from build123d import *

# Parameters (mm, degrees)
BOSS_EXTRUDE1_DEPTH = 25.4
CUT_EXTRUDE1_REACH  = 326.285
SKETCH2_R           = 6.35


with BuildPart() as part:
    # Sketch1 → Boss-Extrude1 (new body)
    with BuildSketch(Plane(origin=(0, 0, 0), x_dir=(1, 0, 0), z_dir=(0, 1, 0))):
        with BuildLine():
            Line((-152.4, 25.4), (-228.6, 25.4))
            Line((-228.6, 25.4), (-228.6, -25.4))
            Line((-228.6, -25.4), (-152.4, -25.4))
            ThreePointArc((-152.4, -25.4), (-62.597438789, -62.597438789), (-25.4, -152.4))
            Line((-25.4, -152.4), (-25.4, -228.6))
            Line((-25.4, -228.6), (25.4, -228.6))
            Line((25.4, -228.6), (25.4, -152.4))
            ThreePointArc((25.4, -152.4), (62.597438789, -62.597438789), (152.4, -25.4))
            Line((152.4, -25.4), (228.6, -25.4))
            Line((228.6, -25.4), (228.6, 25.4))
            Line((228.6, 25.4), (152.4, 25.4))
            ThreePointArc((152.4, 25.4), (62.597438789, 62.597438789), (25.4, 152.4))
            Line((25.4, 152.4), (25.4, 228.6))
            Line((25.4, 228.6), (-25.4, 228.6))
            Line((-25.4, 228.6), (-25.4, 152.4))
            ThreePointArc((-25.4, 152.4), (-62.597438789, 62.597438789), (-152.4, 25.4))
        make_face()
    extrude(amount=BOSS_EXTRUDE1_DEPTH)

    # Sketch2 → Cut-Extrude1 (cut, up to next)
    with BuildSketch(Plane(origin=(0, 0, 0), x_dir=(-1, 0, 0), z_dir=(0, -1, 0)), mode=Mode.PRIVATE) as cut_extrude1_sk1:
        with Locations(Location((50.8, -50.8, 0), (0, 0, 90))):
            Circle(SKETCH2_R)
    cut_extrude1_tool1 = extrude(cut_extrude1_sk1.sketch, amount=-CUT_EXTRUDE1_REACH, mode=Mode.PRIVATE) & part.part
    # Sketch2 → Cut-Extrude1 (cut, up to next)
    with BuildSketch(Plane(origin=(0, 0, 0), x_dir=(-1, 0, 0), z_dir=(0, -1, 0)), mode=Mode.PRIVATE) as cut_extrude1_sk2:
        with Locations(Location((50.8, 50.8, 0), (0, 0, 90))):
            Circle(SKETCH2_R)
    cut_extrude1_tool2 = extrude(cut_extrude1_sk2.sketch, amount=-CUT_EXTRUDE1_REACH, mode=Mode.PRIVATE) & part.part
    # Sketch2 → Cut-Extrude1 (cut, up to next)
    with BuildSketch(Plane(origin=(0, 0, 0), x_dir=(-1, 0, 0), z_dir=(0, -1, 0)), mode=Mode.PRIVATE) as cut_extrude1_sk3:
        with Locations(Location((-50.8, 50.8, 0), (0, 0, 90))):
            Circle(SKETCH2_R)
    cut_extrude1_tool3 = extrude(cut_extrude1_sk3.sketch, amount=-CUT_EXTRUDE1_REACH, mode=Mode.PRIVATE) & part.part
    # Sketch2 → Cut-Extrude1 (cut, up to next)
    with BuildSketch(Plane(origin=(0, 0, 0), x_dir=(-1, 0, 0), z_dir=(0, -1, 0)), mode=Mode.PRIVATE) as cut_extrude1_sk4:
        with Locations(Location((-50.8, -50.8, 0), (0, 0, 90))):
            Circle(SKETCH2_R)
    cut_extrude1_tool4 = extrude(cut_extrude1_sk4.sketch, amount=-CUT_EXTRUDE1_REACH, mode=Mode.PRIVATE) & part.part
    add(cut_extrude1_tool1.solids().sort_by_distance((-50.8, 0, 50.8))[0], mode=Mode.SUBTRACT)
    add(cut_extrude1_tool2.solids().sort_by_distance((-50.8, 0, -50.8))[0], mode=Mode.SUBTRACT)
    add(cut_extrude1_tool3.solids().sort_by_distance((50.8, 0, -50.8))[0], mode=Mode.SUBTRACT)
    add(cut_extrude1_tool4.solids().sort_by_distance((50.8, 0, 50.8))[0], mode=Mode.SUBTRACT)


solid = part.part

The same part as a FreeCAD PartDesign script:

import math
import FreeCAD as App
import Part
import Sketcher
from FreeCAD import Vector
Q = App.Units.Quantity

doc = App.newDocument("Part")
params = doc.addObject("Spreadsheet::Sheet", "Params")
for row, (alias, value) in enumerate([
    ("sketch1_radius", "5 in"),
    ("sketch1_width", "3 in"),
    ("sketch1_width2", "2 in"),
    ("pad1_length", "1 in"),
    ("sketch2_diameter", "0.5 in"),
    ("sketch3_diameter", "0.5 in"),
    ("sketch4_diameter", "0.5 in"),
    ("sketch5_diameter", "0.5 in"),
], start=1):
    params.set(f"A{row}", alias)
    params.set(f"B{row}", "=" + value)
    params.setAlias(f"B{row}", alias)

body = doc.addObject("PartDesign::Body", "Body")

# Sketch on XZ plane
sketch1 = body.newObject("Sketcher::SketchObject", "Sketch")
sketch1.AttachmentSupport = (doc.getObject("XZ_Plane"), [""])
sketch1.MapMode = "FlatFace"
sketch1.addGeometry(Part.LineSegment(Vector(-152.4, -25.4, 0), Vector(-228.6, -25.4, 0)), False)
sketch1.addGeometry(Part.LineSegment(Vector(-228.6, -25.4, 0), Vector(-228.6, 25.4, 0)), False)
sketch1.addGeometry(Part.LineSegment(Vector(-228.6, 25.4, 0), Vector(-152.4, 25.4, 0)), False)
sketch1.addGeometry(Part.ArcOfCircle(Part.Circle(Vector(-152.4, 152.4, 0), Vector(0, 0, 1), 127), math.radians(-90), math.radians(0)), False)
sketch1.addGeometry(Part.LineSegment(Vector(-25.4, 152.4, 0), Vector(-25.4, 228.6, 0)), False)
sketch1.addGeometry(Part.LineSegment(Vector(-25.4, 228.6, 0), Vector(25.4, 228.6, 0)), False)
sketch1.addGeometry(Part.LineSegment(Vector(25.4, 228.6, 0), Vector(25.4, 152.4, 0)), False)
sketch1.addGeometry(Part.ArcOfCircle(Part.Circle(Vector(152.4, 152.4, 0), Vector(0, 0, 1), 127), math.radians(180), math.radians(270)), False)
sketch1.addGeometry(Part.LineSegment(Vector(152.4, 25.4, 0), Vector(228.6, 25.4, 0)), False)
sketch1.addGeometry(Part.LineSegment(Vector(228.6, 25.4, 0), Vector(228.6, -25.4, 0)), False)
sketch1.addGeometry(Part.LineSegment(Vector(228.6, -25.4, 0), Vector(152.4, -25.4, 0)), False)
sketch1.addGeometry(Part.ArcOfCircle(Part.Circle(Vector(152.4, -152.4, 0), Vector(0, 0, 1), 127), math.radians(90), math.radians(180)), False)
sketch1.addGeometry(Part.LineSegment(Vector(25.4, -152.4, 0), Vector(25.4, -228.6, 0)), False)
sketch1.addGeometry(Part.LineSegment(Vector(25.4, -228.6, 0), Vector(-25.4, -228.6, 0)), False)
sketch1.addGeometry(Part.LineSegment(Vector(-25.4, -228.6, 0), Vector(-25.4, -152.4, 0)), False)
sketch1.addGeometry(Part.ArcOfCircle(Part.Circle(Vector(-152.4, -152.4, 0), Vector(0, 0, 1), 127), math.radians(0), math.radians(90)), False)
sketch1.addConstraint(Sketcher.Constraint("Coincident", 0, 2, 1, 1))
sketch1.addConstraint(Sketcher.Constraint("Coincident", 1, 2, 2, 1))
sketch1.addConstraint(Sketcher.Constraint("Tangent", 2, 2, 3, 1))
sketch1.addConstraint(Sketcher.Constraint("Tangent", 3, 2, 4, 1))
sketch1.addConstraint(Sketcher.Constraint("Coincident", 4, 2, 5, 1))
sketch1.addConstraint(Sketcher.Constraint("Coincident", 5, 2, 6, 1))
sketch1.addConstraint(Sketcher.Constraint("Tangent", 6, 2, 7, 1))
sketch1.addConstraint(Sketcher.Constraint("Tangent", 7, 2, 8, 1))
sketch1.addConstraint(Sketcher.Constraint("Coincident", 8, 2, 9, 1))
sketch1.addConstraint(Sketcher.Constraint("Coincident", 9, 2, 10, 1))
sketch1.addConstraint(Sketcher.Constraint("Tangent", 10, 2, 11, 1))
sketch1.addConstraint(Sketcher.Constraint("Tangent", 11, 2, 12, 1))
sketch1.addConstraint(Sketcher.Constraint("Coincident", 12, 2, 13, 1))
sketch1.addConstraint(Sketcher.Constraint("Coincident", 13, 2, 14, 1))
sketch1.addConstraint(Sketcher.Constraint("Tangent", 14, 2, 15, 1))
sketch1.addConstraint(Sketcher.Constraint("Tangent", 15, 2, 0, 1))
sketch1.addConstraint(Sketcher.Constraint("Horizontal", 0))
sketch1.addConstraint(Sketcher.Constraint("Vertical", 1))
sketch1.addConstraint(Sketcher.Constraint("Horizontal", 2))
sketch1.addConstraint(Sketcher.Constraint("Vertical", 4))
sketch1.addConstraint(Sketcher.Constraint("Horizontal", 5))
sketch1.addConstraint(Sketcher.Constraint("Vertical", 6))
sketch1.addConstraint(Sketcher.Constraint("Horizontal", 8))
sketch1.addConstraint(Sketcher.Constraint("Vertical", 9))
sketch1.addConstraint(Sketcher.Constraint("Horizontal", 10))
sketch1.addConstraint(Sketcher.Constraint("Vertical", 12))
sketch1.addConstraint(Sketcher.Constraint("Horizontal", 13))
sketch1.addConstraint(Sketcher.Constraint("Vertical", 14))
sketch1.addConstraint(Sketcher.Constraint("Equal", 3, 7))
sketch1.addConstraint(Sketcher.Constraint("Equal", 7, 11))
sketch1.addConstraint(Sketcher.Constraint("Equal", 11, 15))
sketch1.addConstraint(Sketcher.Constraint("Symmetric", 3, 3, 11, 3, -1, 1))
sketch1.addConstraint(Sketcher.Constraint("Symmetric", 7, 3, 15, 3, -1, 1))
sketch1.addConstraint(Sketcher.Constraint("Symmetric", 3, 3, 7, 3, -2))
sketch1.addConstraint(Sketcher.Constraint("Equal", 2, 8))
sketch1.addConstraint(Sketcher.Constraint("Equal", 13, 1))
sketch1.addConstraint(Sketcher.Constraint("Equal", 10, 4))
sketch1.addConstraint(Sketcher.Constraint("Equal", 6, 12))
sketch1.addConstraint(Sketcher.Constraint("Radius", 3, Q("5 in")))
sketch1.addConstraint(Sketcher.Constraint("DistanceX", 0, 2, 0, 1, Q("3 in")))
sketch1.addConstraint(Sketcher.Constraint("DistanceX", 5, 1, 5, 2, Q("2 in")))
sketch1.setExpression("Constraints[38]", "Params.sketch1_radius")
sketch1.setExpression("Constraints[39]", "Params.sketch1_width")
sketch1.setExpression("Constraints[40]", "Params.sketch1_width2")
pad1 = body.newObject("PartDesign::Pad", "Pad")
pad1.Profile = sketch1
pad1.setExpression("Length", "Params.pad1_length")
pad1.Reversed = True

# Sketch on XZ plane
sketch2 = body.newObject("Sketcher::SketchObject", "Sketch001")
sketch2.AttachmentSupport = (doc.getObject("XZ_Plane"), [""])
sketch2.MapMode = "FlatFace"
sketch2.addGeometry(Part.Circle(Vector(-50.8, 50.8, 0), Vector(0, 0, 1), 6.35), False)
sketch2.addConstraint(Sketcher.Constraint("Diameter", 0, Q("0.5 in")))
sketch2.addConstraint(Sketcher.Constraint("DistanceX", 0, 3, -1, 1, Q("2 in")))
sketch2.addConstraint(Sketcher.Constraint("DistanceY", -1, 1, 0, 3, Q("2 in")))
sketch2.setExpression("Constraints[0]", "Params.sketch2_diameter")
pocket1 = body.newObject("PartDesign::Pocket", "Pocket")
pocket1.Profile = sketch2
pocket1.Type = "UpToFirst"

# Sketch on XZ plane
sketch3 = body.newObject("Sketcher::SketchObject", "Sketch002")
sketch3.AttachmentSupport = (doc.getObject("XZ_Plane"), [""])
sketch3.MapMode = "FlatFace"
sketch3.addGeometry(Part.Circle(Vector(-50.8, -50.8, 0), Vector(0, 0, 1), 6.35), False)
sketch3.addConstraint(Sketcher.Constraint("Diameter", 0, Q("0.5 in")))
sketch3.addConstraint(Sketcher.Constraint("DistanceX", 0, 3, -1, 1, Q("2 in")))
sketch3.addConstraint(Sketcher.Constraint("DistanceY", 0, 3, -1, 1, Q("2 in")))
sketch3.setExpression("Constraints[0]", "Params.sketch3_diameter")
pocket2 = body.newObject("PartDesign::Pocket", "Pocket001")
pocket2.Profile = sketch3
pocket2.Type = "UpToFirst"

# Sketch on XZ plane
sketch4 = body.newObject("Sketcher::SketchObject", "Sketch003")
sketch4.AttachmentSupport = (doc.getObject("XZ_Plane"), [""])
sketch4.MapMode = "FlatFace"
sketch4.addGeometry(Part.Circle(Vector(50.8, -50.8, 0), Vector(0, 0, 1), 6.35), False)
sketch4.addConstraint(Sketcher.Constraint("Diameter", 0, Q("0.5 in")))
sketch4.addConstraint(Sketcher.Constraint("DistanceX", -1, 1, 0, 3, Q("2 in")))
sketch4.addConstraint(Sketcher.Constraint("DistanceY", 0, 3, -1, 1, Q("2 in")))
sketch4.setExpression("Constraints[0]", "Params.sketch4_diameter")
pocket3 = body.newObject("PartDesign::Pocket", "Pocket002")
pocket3.Profile = sketch4
pocket3.Type = "UpToFirst"

# Sketch on XZ plane
sketch5 = body.newObject("Sketcher::SketchObject", "Sketch004")
sketch5.AttachmentSupport = (doc.getObject("XZ_Plane"), [""])
sketch5.MapMode = "FlatFace"
sketch5.addGeometry(Part.Circle(Vector(50.8, 50.8, 0), Vector(0, 0, 1), 6.35), False)
sketch5.addConstraint(Sketcher.Constraint("Diameter", 0, Q("0.5 in")))
sketch5.addConstraint(Sketcher.Constraint("DistanceX", -1, 1, 0, 3, Q("2 in")))
sketch5.addConstraint(Sketcher.Constraint("DistanceY", -1, 1, 0, 3, Q("2 in")))
sketch5.setExpression("Constraints[0]", "Params.sketch5_diameter")
pocket4 = body.newObject("PartDesign::Pocket", "Pocket003")
pocket4.Profile = sketch5
pocket4.Type = "UpToFirst"

doc.recompute()
